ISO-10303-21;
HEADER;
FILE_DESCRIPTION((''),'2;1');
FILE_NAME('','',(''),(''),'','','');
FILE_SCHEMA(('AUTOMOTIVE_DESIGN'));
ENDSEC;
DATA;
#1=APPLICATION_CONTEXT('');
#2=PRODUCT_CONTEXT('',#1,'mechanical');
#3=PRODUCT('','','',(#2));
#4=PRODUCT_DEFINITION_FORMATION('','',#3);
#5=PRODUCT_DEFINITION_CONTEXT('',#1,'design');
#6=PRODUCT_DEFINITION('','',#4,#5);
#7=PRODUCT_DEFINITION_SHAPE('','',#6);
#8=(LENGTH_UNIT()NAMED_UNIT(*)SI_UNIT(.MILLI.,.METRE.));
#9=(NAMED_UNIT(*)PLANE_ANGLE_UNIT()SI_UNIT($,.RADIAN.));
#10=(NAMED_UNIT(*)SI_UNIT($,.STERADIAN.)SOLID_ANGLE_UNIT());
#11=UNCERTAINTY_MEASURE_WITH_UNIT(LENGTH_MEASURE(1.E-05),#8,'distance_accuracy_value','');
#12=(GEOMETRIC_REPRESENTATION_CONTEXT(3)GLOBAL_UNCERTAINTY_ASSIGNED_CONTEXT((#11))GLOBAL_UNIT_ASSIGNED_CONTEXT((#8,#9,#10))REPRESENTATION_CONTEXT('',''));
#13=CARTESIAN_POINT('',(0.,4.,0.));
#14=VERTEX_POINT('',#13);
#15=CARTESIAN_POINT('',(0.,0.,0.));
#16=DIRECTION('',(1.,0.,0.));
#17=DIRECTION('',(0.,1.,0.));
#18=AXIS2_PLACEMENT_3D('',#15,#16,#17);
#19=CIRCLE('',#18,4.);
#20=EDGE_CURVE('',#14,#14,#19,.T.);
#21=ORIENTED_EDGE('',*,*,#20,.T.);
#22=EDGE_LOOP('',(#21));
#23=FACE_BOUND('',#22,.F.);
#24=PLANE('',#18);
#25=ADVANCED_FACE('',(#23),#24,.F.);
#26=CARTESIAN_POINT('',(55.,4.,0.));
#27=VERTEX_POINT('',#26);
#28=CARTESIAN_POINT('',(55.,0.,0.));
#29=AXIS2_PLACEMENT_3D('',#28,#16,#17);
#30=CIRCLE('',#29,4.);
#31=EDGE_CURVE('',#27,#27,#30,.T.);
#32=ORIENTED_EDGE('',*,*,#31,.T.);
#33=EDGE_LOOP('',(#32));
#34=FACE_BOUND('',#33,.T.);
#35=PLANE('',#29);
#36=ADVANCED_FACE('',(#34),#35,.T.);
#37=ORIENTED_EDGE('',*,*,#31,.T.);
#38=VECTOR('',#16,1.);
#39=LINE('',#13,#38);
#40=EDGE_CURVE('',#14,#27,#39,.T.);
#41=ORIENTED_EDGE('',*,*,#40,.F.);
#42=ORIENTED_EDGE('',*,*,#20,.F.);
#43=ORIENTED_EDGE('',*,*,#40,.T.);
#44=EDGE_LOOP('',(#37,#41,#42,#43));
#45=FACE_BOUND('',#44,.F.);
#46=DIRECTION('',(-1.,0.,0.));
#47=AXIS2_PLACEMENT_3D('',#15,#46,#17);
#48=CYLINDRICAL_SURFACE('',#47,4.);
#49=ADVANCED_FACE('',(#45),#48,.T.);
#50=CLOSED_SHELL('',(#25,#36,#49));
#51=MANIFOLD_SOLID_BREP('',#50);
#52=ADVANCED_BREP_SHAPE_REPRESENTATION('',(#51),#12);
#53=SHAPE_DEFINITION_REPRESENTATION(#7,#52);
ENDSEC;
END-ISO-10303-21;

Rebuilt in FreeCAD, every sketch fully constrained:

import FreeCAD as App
import Part
import Sketcher

V = App.Vector

doc = App.newDocument("Part")
body = doc.addObject("PartDesign::Body", "Body")

# Sketch on YZ plane
sketch1 = doc.addObject("Sketcher::SketchObject", "Sketch")
body.addObject(sketch1)
sketch1.AttachmentSupport = (doc.YZ_Plane, [""])
sketch1.MapMode = "FlatFace"
sketch1.addGeometry(Part.Circle(V(0, 0, 0), V(0, 0, 1), 4), False)
sketch1.addConstraint(Sketcher.Constraint("Coincident", 0, 3, -1, 1))
sketch1.addConstraint(Sketcher.Constraint("Diameter", 0, 8.0))
pad1 = doc.addObject("PartDesign::Pad", "Pad")
body.addObject(pad1)
pad1.Profile = sketch1
pad1.Length = 55

doc.recompute()
